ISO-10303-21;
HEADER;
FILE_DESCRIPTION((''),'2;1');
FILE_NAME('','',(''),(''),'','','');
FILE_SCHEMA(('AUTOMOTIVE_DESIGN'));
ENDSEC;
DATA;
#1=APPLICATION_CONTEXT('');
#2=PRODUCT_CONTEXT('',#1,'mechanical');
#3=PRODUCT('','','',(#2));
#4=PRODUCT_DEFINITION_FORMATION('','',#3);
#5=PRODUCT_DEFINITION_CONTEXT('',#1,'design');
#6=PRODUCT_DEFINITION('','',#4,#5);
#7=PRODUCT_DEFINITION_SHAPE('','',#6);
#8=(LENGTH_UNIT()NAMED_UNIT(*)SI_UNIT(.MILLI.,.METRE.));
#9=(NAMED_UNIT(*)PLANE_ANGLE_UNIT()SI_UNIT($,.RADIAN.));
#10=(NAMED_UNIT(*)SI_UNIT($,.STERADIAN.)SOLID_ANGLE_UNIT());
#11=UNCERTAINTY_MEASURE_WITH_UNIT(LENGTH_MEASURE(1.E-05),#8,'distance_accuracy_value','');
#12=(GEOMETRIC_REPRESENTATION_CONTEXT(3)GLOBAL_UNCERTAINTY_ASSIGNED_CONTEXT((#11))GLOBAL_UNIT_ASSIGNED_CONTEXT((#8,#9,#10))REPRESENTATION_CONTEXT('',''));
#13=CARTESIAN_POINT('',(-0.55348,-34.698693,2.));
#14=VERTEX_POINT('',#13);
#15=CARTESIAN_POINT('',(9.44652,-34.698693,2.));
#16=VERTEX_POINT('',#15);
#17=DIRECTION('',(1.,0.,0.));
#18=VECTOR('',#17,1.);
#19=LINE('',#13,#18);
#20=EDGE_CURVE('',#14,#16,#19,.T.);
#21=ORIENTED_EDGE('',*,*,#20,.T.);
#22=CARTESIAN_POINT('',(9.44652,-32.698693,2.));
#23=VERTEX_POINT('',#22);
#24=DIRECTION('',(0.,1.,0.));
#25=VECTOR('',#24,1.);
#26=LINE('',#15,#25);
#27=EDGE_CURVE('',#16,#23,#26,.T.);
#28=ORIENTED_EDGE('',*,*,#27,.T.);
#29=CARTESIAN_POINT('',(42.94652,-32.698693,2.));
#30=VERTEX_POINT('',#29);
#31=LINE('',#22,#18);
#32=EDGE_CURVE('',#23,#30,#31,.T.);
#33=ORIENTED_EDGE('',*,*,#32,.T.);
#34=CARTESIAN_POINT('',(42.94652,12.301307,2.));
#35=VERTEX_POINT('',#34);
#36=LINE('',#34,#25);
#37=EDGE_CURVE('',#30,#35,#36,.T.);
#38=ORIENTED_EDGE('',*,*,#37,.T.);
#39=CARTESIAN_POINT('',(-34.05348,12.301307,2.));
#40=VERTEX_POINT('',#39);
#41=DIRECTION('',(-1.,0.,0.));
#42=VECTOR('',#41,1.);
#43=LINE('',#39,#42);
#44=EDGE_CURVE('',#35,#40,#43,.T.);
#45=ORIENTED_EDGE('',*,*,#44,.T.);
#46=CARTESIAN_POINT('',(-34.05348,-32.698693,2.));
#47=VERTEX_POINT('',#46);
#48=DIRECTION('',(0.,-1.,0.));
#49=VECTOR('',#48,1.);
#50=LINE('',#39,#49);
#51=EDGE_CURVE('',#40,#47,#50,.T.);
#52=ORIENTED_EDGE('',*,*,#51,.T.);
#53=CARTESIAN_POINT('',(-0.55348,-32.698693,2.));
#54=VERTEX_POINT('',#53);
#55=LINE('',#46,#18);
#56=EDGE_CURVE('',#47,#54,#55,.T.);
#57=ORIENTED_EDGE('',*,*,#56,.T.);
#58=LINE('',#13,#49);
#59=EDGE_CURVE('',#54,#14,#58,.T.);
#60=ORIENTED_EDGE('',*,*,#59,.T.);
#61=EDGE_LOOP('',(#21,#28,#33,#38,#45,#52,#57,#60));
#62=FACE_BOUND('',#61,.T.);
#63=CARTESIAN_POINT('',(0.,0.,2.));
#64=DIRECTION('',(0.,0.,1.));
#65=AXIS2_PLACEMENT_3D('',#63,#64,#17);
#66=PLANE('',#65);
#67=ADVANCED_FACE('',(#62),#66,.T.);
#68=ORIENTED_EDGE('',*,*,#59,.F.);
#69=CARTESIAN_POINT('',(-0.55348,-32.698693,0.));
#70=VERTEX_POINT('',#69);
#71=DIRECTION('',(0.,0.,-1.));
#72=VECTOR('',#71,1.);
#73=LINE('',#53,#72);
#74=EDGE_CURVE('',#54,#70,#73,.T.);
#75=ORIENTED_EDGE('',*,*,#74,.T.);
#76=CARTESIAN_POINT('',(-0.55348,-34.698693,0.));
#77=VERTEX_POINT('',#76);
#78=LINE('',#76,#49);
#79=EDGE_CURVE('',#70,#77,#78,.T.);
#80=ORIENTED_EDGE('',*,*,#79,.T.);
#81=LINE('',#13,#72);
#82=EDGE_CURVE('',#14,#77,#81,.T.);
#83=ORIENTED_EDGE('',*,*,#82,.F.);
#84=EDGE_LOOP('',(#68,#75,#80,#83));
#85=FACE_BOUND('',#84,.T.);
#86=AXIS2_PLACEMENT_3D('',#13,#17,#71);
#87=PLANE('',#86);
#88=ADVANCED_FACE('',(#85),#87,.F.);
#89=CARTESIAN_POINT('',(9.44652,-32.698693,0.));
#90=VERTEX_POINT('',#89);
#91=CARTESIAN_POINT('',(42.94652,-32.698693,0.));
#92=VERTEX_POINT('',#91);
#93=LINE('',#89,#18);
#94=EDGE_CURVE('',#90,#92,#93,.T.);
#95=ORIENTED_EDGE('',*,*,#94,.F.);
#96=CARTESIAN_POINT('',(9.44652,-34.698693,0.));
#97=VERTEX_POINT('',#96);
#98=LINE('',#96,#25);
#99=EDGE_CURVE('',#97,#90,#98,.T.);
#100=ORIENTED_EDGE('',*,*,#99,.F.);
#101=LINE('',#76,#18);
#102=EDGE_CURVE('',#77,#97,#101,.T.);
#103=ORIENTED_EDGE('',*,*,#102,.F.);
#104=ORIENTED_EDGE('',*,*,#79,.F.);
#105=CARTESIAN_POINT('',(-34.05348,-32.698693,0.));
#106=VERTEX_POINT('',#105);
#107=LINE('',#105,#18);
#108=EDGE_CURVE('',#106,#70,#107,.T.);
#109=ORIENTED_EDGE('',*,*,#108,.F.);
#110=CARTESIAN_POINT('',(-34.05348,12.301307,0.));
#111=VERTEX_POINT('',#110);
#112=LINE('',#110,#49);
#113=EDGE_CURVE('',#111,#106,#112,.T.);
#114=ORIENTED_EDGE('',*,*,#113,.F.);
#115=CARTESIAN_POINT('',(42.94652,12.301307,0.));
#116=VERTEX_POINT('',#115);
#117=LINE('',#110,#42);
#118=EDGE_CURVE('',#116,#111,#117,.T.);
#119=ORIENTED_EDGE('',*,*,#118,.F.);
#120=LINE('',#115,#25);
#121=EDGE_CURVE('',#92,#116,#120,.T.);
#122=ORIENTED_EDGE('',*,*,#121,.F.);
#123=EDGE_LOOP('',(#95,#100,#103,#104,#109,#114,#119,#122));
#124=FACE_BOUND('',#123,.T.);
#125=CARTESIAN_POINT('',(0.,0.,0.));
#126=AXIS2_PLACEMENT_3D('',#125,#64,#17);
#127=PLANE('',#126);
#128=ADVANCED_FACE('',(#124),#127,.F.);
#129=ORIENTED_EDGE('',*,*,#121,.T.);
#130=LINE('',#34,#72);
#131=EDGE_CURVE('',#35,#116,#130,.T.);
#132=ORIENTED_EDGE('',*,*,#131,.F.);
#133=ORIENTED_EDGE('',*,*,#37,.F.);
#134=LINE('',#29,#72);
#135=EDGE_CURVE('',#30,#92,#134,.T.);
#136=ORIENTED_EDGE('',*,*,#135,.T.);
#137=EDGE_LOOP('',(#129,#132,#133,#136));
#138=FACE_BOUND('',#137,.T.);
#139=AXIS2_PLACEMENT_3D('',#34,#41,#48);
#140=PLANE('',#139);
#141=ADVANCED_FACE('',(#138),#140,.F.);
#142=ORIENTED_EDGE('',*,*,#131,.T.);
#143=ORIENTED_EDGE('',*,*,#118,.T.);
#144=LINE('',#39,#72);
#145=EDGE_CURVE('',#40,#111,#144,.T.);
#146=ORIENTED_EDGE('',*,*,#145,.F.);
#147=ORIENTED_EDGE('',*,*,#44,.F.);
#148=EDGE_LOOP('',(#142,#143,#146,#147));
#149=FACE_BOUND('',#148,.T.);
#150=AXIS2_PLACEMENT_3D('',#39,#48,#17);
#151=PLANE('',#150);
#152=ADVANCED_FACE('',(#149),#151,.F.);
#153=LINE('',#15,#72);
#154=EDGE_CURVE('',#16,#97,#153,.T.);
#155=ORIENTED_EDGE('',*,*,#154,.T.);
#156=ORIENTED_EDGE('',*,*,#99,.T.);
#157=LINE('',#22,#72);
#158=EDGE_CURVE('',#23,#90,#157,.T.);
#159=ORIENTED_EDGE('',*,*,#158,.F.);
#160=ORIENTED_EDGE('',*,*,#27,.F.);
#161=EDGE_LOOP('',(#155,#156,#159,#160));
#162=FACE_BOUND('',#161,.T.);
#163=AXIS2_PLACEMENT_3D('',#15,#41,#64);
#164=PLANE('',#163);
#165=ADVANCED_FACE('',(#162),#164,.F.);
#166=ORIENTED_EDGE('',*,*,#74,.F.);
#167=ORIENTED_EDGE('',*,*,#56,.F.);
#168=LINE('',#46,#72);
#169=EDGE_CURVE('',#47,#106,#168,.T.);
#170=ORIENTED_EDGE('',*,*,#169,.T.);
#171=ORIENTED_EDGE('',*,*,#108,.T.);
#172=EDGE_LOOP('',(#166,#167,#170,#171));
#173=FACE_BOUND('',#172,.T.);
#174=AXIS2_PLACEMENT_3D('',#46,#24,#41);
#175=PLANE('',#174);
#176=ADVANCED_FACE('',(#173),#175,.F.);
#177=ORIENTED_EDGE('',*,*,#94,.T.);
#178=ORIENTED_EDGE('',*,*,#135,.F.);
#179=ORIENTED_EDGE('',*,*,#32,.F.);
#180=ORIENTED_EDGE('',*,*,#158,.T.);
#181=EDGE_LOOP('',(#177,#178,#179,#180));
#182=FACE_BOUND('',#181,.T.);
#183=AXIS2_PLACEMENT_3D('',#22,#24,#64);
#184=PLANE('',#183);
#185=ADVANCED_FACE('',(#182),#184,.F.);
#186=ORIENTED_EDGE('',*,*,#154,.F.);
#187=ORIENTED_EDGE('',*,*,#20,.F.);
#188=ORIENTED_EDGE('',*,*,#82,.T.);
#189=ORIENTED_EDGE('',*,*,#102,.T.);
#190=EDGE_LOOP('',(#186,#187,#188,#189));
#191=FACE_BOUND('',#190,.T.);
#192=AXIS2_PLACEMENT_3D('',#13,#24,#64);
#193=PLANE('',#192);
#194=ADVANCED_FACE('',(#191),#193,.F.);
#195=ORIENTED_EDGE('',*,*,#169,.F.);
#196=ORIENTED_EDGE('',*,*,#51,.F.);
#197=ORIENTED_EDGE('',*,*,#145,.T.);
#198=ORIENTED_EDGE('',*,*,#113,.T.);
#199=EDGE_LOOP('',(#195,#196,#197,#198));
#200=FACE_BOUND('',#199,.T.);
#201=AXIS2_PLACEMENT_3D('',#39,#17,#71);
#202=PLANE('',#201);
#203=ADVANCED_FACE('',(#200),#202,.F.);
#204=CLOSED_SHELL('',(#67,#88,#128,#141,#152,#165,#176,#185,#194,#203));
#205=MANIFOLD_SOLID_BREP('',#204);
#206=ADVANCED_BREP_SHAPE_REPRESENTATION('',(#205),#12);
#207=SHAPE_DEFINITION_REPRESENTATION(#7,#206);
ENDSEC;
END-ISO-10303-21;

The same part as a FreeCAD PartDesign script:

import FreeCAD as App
import Part
import Sketcher
from FreeCAD import Vector

doc = App.newDocument("Part")
body = doc.addObject("PartDesign::Body", "Body")

sketch1 = body.newObject("Sketcher::SketchObject", "Sketch")
sketch1.AttachmentSupport = (doc.getObject("XY_Plane"), [""])
sketch1.MapMode = "FlatFace"
sketch1.addGeometry([
    Part.LineSegment(Vector(9.4, -32.7, 0), Vector(42.9, -32.7, 0)),
    Part.LineSegment(Vector(42.9, -32.7, 0), Vector(42.9, 12.3, 0)),
    Part.LineSegment(Vector(42.9, 12.3, 0), Vector(-34.1, 12.3, 0)),
    Part.LineSegment(Vector(-34.1, 12.3, 0), Vector(-34.1, -32.7, 0)),
    Part.LineSegment(Vector(-34.1, -32.7, 0), Vector(-0.6, -32.7, 0)),
    Part.LineSegment(Vector(-0.6, -32.7, 0), Vector(-0.6, -34.7, 0)),
    Part.LineSegment(Vector(-0.6, -34.7, 0), Vector(9.4, -34.7, 0)),
    Part.LineSegment(Vector(9.4, -34.7, 0), Vector(9.4, -32.7, 0)),
], False)
sketch1.addConstraint([
    Sketcher.Constraint("Coincident", 0, 2, 1, 1),
    Sketcher.Constraint("Coincident", 1, 2, 2, 1),
    Sketcher.Constraint("Coincident", 2, 2, 3, 1),
    Sketcher.Constraint("Coincident", 3, 2, 4, 1),
    Sketcher.Constraint("Coincident", 4, 2, 5, 1),
    Sketcher.Constraint("Coincident", 5, 2, 6, 1),
    Sketcher.Constraint("Coincident", 6, 2, 7, 1),
    Sketcher.Constraint("Coincident", 7, 2, 0, 1),
    Sketcher.Constraint("Horizontal", 0),
    Sketcher.Constraint("Vertical", 1),
    Sketcher.Constraint("Horizontal", 2),
    Sketcher.Constraint("Vertical", 3),
    Sketcher.Constraint("Horizontal", 4),
    Sketcher.Constraint("Vertical", 5),
    Sketcher.Constraint("Horizontal", 6),
    Sketcher.Constraint("Vertical", 7),
    Sketcher.Constraint("Horizontal", 0, 2, 3, 2),
    Sketcher.Constraint("Equal", 0, 4),
    Sketcher.Constraint("DistanceX", 2, 2, 2, 1, 77.0),
    Sketcher.Constraint("DistanceX", 6, 1, 6, 2, 10.0),
    Sketcher.Constraint("DistanceY", 1, 1, 1, 2, 45.0),
    Sketcher.Constraint("DistanceY", 5, 2, 5, 1, 2.0),
    Sketcher.Constraint("DistanceX", -1, 1, 0, 2, 42.94652),
    Sketcher.Constraint("DistanceY", 0, 2, -1, 1, 32.698693),
])
pad1 = body.newObject("PartDesign::Pad", "Pad")
pad1.Profile = sketch1
pad1.Length = 2

doc.recompute()
